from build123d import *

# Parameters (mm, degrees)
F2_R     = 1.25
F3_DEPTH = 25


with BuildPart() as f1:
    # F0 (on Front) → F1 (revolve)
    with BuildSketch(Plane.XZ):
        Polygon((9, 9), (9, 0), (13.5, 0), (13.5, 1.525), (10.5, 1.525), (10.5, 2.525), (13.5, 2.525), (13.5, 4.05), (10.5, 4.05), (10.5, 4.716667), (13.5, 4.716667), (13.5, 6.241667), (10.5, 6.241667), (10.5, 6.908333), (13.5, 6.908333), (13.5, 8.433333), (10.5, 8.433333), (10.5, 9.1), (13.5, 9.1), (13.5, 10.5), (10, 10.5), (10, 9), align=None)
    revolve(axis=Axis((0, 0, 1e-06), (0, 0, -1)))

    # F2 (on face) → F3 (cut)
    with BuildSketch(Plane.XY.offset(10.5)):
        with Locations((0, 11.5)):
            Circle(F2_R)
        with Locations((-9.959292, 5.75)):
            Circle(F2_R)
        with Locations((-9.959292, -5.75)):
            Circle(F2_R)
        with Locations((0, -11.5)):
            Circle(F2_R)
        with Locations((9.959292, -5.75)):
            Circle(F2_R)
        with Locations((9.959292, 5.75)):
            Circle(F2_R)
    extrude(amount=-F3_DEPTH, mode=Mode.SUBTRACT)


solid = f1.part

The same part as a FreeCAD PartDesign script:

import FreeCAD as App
import Part
import Sketcher
from FreeCAD import Vector

doc = App.newDocument("Part")
body = doc.addObject("PartDesign::Body", "Body")

# Sketch on XZ plane
sketch1 = body.newObject("Sketcher::SketchObject", "Sketch")
sketch1.AttachmentSupport = (doc.getObject("XZ_Plane"), [""])
sketch1.MapMode = "FlatFace"
sketch1.addGeometry([
    Part.LineSegment(Vector(9, 9, 0), Vector(9, 0, 0)),  # 0
    Part.LineSegment(Vector(9, 0, 0), Vector(13.5, 0, 0)),  # 1
    Part.LineSegment(Vector(13.5, 0, 0), Vector(13.5, 1.5, 0)),  # 2
    Part.LineSegment(Vector(13.5, 1.5, 0), Vector(10.5, 1.5, 0)),  # 3
    Part.LineSegment(Vector(10.5, 1.5, 0), Vector(10.5, 2.5, 0)),  # 4
    Part.LineSegment(Vector(10.5, 2.5, 0), Vector(13.5, 2.5, 0)),  # 5
    Part.LineSegment(Vector(13.5, 2.5, 0), Vector(13.5, 4, 0)),  # 6
    Part.LineSegment(Vector(13.5, 4, 0), Vector(10.5, 4, 0)),  # 7
    Part.LineSegment(Vector(10.5, 4, 0), Vector(10.5, 4.7, 0)),  # 8
    Part.LineSegment(Vector(10.5, 4.7, 0), Vector(13.5, 4.7, 0)),  # 9
    Part.LineSegment(Vector(13.5, 4.7, 0), Vector(13.5, 6.2, 0)),  # 10
    Part.LineSegment(Vector(13.5, 6.2, 0), Vector(10.5, 6.2, 0)),  # 11
    Part.LineSegment(Vector(10.5, 6.2, 0), Vector(10.5, 6.9, 0)),  # 12
    Part.LineSegment(Vector(10.5, 6.9, 0), Vector(13.5, 6.9, 0)),  # 13
    Part.LineSegment(Vector(13.5, 6.9, 0), Vector(13.5, 8.4, 0)),  # 14
    Part.LineSegment(Vector(13.5, 8.4, 0), Vector(10.5, 8.4, 0)),  # 15
    Part.LineSegment(Vector(10.5, 8.4, 0), Vector(10.5, 9.1, 0)),  # 16
    Part.LineSegment(Vector(10.5, 9.1, 0), Vector(13.5, 9.1, 0)),  # 17
    Part.LineSegment(Vector(13.5, 9.1, 0), Vector(13.5, 10.5, 0)),  # 18
    Part.LineSegment(Vector(13.5, 10.5, 0), Vector(10, 10.5, 0)),  # 19
    Part.LineSegment(Vector(10, 10.5, 0), Vector(10, 9, 0)),  # 20
    Part.LineSegment(Vector(10, 9, 0), Vector(9, 9, 0)),  # 21
], False)
sketch1.addConstraint([
    Sketcher.Constraint("Coincident", 0, 2, 1, 1),
    Sketcher.Constraint("Coincident", 1, 2, 2, 1),
    Sketcher.Constraint("Coincident", 2, 2, 3, 1),
    Sketcher.Constraint("Coincident", 3, 2, 4, 1),
    Sketcher.Constraint("Coincident", 4, 2, 5, 1),
    Sketcher.Constraint("Coincident", 5, 2, 6, 1),
    Sketcher.Constraint("Coincident", 6, 2, 7, 1),
    Sketcher.Constraint("Coincident", 7, 2, 8, 1),
    Sketcher.Constraint("Coincident", 8, 2, 9, 1),
    Sketcher.Constraint("Coincident", 9, 2, 10, 1),
    Sketcher.Constraint("Coincident", 10, 2, 11, 1),
    Sketcher.Constraint("Coincident", 11, 2, 12, 1),
    Sketcher.Constraint("Coincident", 12, 2, 13, 1),
    Sketcher.Constraint("Coincident", 13, 2, 14, 1),
    Sketcher.Constraint("Coincident", 14, 2, 15, 1),
    Sketcher.Constraint("Coincident", 15, 2, 16, 1),
    Sketcher.Constraint("Coincident", 16, 2, 17, 1),
    Sketcher.Constraint("Coincident", 17, 2, 18, 1),
    Sketcher.Constraint("Coincident", 18, 2, 19, 1),
    Sketcher.Constraint("Coincident", 19, 2, 20, 1),
    Sketcher.Constraint("Coincident", 20, 2, 21, 1),
    Sketcher.Constraint("Coincident", 21, 2, 0, 1),
    Sketcher.Constraint("Vertical", 0),
    Sketcher.Constraint("Horizontal", 1),
    Sketcher.Constraint("Vertical", 2),
    Sketcher.Constraint("Horizontal", 3),
    Sketcher.Constraint("Vertical", 4),
    Sketcher.Constraint("Horizontal", 5),
    Sketcher.Constraint("Vertical", 6),
    Sketcher.Constraint("Horizontal", 7),
    Sketcher.Constraint("Vertical", 8),
    Sketcher.Constraint("Horizontal", 9),
    Sketcher.Constraint("Vertical", 10),
    Sketcher.Constraint("Horizontal", 11),
    Sketcher.Constraint("Vertical", 12),
    Sketcher.Constraint("Horizontal", 13),
    Sketcher.Constraint("Vertical", 14),
    Sketcher.Constraint("Horizontal", 15),
    Sketcher.Constraint("Vertical", 16),
    Sketcher.Constraint("Horizontal", 17),
    Sketcher.Constraint("Vertical", 18),
    Sketcher.Constraint("Horizontal", 19),
    Sketcher.Constraint("Vertical", 20),
    Sketcher.Constraint("Horizontal", 21),
    Sketcher.Constraint("PointOnObject", 0, 2, -1),
    Sketcher.Constraint("Vertical", 2, 2, 5, 2),
    Sketcher.Constraint("Vertical", 4, 2, 7, 2),
    Sketcher.Constraint("Vertical", 6, 2, 9, 2),
    Sketcher.Constraint("Vertical", 8, 2, 11, 2),
    Sketcher.Constraint("Vertical", 10, 2, 13, 2),
    Sketcher.Constraint("Vertical", 12, 2, 15, 2),
    Sketcher.Constraint("Vertical", 14, 2, 17, 2),
    Sketcher.Constraint("Equal", 21, 4),
    Sketcher.Constraint("Equal", 2, 6),
    Sketcher.Constraint("Equal", 6, 10),
    Sketcher.Constraint("Equal", 8, 12),
    Sketcher.Constraint("Equal", 10, 14),
    Sketcher.Constraint("Equal", 12, 16),
    Sketcher.Constraint("DistanceX", 3, 2, 3, 1, 3.0),
    Sketcher.Constraint("DistanceX", 21, 2, 21, 1, 1.0),
    Sketcher.Constraint("DistanceY", 0, 2, 0, 1, 9.0),
    Sketcher.Constraint("DistanceX", 1, 1, 1, 2, 4.5),
    Sketcher.Constraint("DistanceY", 18, 1, 18, 2, 1.4),
    Sketcher.Constraint("DistanceY", 20, 2, 20, 1, 1.5),
    Sketcher.Constraint("DistanceX", -1, 1, 0, 2, 9.0),
    Sketcher.Constraint("DistanceY", 2, 1, 2, 2, 1.525),
])
revolution = body.newObject("PartDesign::Revolution", "Revolution")
revolution.Profile = sketch1
revolution.ReferenceAxis = (sketch1, ["V_Axis"])
revolution.Angle = 360

# Sketch on XY plane
sketch2 = body.newObject("Sketcher::SketchObject", "Sketch001")
sketch2.AttachmentSupport = (doc.getObject("XY_Plane"), [""])
sketch2.MapMode = "FlatFace"
sketch2.AttachmentOffset = App.Placement(Vector(0, 0, 10.5), App.Rotation())
sketch2.addGeometry([
    Part.Circle(Vector(0, 11.5, 0), Vector(0, 0, 1), 1.2),  # 0
    Part.Circle(Vector(-10, 5.8, 0), Vector(0, 0, 1), 1.2),  # 1
    Part.Circle(Vector(-10, -5.8, 0), Vector(0, 0, 1), 1.2),  # 2
    Part.Circle(Vector(0, -11.5, 0), Vector(0, 0, 1), 1.2),  # 3
    Part.Circle(Vector(10, -5.8, 0), Vector(0, 0, 1), 1.2),  # 4
    Part.Circle(Vector(10, 5.8, 0), Vector(0, 0, 1), 1.2),  # 5
], False)
sketch2.addConstraint([
    Sketcher.Constraint("Equal", 0, 1),
    Sketcher.Constraint("Equal", 1, 2),
    Sketcher.Constraint("Equal", 2, 3),
    Sketcher.Constraint("Equal", 3, 4),
    Sketcher.Constraint("Equal", 4, 5),
    Sketcher.Constraint("Symmetric", 0, 3, 3, 3, -1, 1),
    Sketcher.Constraint("Symmetric", 1, 3, 4, 3, -1, 1),
    Sketcher.Constraint("Symmetric", 2, 3, 5, 3, -1, 1),
    Sketcher.Constraint("Symmetric", 2, 3, 4, 3, -2),
    Sketcher.Constraint("PointOnObject", 0, 3, -2),
    Sketcher.Constraint("Diameter", 0, 2.5),
    Sketcher.Constraint("DistanceY", 3, 3, 0, 3, 23.0),
    Sketcher.Constraint("DistanceY", 2, 3, 1, 3, 11.5),
    Sketcher.Constraint("DistanceX", 1, 3, -1, 1, 9.959292),
])
pocket1 = body.newObject("PartDesign::Pocket", "Pocket")
pocket1.Profile = sketch2
pocket1.Length = 25

doc.recompute()
